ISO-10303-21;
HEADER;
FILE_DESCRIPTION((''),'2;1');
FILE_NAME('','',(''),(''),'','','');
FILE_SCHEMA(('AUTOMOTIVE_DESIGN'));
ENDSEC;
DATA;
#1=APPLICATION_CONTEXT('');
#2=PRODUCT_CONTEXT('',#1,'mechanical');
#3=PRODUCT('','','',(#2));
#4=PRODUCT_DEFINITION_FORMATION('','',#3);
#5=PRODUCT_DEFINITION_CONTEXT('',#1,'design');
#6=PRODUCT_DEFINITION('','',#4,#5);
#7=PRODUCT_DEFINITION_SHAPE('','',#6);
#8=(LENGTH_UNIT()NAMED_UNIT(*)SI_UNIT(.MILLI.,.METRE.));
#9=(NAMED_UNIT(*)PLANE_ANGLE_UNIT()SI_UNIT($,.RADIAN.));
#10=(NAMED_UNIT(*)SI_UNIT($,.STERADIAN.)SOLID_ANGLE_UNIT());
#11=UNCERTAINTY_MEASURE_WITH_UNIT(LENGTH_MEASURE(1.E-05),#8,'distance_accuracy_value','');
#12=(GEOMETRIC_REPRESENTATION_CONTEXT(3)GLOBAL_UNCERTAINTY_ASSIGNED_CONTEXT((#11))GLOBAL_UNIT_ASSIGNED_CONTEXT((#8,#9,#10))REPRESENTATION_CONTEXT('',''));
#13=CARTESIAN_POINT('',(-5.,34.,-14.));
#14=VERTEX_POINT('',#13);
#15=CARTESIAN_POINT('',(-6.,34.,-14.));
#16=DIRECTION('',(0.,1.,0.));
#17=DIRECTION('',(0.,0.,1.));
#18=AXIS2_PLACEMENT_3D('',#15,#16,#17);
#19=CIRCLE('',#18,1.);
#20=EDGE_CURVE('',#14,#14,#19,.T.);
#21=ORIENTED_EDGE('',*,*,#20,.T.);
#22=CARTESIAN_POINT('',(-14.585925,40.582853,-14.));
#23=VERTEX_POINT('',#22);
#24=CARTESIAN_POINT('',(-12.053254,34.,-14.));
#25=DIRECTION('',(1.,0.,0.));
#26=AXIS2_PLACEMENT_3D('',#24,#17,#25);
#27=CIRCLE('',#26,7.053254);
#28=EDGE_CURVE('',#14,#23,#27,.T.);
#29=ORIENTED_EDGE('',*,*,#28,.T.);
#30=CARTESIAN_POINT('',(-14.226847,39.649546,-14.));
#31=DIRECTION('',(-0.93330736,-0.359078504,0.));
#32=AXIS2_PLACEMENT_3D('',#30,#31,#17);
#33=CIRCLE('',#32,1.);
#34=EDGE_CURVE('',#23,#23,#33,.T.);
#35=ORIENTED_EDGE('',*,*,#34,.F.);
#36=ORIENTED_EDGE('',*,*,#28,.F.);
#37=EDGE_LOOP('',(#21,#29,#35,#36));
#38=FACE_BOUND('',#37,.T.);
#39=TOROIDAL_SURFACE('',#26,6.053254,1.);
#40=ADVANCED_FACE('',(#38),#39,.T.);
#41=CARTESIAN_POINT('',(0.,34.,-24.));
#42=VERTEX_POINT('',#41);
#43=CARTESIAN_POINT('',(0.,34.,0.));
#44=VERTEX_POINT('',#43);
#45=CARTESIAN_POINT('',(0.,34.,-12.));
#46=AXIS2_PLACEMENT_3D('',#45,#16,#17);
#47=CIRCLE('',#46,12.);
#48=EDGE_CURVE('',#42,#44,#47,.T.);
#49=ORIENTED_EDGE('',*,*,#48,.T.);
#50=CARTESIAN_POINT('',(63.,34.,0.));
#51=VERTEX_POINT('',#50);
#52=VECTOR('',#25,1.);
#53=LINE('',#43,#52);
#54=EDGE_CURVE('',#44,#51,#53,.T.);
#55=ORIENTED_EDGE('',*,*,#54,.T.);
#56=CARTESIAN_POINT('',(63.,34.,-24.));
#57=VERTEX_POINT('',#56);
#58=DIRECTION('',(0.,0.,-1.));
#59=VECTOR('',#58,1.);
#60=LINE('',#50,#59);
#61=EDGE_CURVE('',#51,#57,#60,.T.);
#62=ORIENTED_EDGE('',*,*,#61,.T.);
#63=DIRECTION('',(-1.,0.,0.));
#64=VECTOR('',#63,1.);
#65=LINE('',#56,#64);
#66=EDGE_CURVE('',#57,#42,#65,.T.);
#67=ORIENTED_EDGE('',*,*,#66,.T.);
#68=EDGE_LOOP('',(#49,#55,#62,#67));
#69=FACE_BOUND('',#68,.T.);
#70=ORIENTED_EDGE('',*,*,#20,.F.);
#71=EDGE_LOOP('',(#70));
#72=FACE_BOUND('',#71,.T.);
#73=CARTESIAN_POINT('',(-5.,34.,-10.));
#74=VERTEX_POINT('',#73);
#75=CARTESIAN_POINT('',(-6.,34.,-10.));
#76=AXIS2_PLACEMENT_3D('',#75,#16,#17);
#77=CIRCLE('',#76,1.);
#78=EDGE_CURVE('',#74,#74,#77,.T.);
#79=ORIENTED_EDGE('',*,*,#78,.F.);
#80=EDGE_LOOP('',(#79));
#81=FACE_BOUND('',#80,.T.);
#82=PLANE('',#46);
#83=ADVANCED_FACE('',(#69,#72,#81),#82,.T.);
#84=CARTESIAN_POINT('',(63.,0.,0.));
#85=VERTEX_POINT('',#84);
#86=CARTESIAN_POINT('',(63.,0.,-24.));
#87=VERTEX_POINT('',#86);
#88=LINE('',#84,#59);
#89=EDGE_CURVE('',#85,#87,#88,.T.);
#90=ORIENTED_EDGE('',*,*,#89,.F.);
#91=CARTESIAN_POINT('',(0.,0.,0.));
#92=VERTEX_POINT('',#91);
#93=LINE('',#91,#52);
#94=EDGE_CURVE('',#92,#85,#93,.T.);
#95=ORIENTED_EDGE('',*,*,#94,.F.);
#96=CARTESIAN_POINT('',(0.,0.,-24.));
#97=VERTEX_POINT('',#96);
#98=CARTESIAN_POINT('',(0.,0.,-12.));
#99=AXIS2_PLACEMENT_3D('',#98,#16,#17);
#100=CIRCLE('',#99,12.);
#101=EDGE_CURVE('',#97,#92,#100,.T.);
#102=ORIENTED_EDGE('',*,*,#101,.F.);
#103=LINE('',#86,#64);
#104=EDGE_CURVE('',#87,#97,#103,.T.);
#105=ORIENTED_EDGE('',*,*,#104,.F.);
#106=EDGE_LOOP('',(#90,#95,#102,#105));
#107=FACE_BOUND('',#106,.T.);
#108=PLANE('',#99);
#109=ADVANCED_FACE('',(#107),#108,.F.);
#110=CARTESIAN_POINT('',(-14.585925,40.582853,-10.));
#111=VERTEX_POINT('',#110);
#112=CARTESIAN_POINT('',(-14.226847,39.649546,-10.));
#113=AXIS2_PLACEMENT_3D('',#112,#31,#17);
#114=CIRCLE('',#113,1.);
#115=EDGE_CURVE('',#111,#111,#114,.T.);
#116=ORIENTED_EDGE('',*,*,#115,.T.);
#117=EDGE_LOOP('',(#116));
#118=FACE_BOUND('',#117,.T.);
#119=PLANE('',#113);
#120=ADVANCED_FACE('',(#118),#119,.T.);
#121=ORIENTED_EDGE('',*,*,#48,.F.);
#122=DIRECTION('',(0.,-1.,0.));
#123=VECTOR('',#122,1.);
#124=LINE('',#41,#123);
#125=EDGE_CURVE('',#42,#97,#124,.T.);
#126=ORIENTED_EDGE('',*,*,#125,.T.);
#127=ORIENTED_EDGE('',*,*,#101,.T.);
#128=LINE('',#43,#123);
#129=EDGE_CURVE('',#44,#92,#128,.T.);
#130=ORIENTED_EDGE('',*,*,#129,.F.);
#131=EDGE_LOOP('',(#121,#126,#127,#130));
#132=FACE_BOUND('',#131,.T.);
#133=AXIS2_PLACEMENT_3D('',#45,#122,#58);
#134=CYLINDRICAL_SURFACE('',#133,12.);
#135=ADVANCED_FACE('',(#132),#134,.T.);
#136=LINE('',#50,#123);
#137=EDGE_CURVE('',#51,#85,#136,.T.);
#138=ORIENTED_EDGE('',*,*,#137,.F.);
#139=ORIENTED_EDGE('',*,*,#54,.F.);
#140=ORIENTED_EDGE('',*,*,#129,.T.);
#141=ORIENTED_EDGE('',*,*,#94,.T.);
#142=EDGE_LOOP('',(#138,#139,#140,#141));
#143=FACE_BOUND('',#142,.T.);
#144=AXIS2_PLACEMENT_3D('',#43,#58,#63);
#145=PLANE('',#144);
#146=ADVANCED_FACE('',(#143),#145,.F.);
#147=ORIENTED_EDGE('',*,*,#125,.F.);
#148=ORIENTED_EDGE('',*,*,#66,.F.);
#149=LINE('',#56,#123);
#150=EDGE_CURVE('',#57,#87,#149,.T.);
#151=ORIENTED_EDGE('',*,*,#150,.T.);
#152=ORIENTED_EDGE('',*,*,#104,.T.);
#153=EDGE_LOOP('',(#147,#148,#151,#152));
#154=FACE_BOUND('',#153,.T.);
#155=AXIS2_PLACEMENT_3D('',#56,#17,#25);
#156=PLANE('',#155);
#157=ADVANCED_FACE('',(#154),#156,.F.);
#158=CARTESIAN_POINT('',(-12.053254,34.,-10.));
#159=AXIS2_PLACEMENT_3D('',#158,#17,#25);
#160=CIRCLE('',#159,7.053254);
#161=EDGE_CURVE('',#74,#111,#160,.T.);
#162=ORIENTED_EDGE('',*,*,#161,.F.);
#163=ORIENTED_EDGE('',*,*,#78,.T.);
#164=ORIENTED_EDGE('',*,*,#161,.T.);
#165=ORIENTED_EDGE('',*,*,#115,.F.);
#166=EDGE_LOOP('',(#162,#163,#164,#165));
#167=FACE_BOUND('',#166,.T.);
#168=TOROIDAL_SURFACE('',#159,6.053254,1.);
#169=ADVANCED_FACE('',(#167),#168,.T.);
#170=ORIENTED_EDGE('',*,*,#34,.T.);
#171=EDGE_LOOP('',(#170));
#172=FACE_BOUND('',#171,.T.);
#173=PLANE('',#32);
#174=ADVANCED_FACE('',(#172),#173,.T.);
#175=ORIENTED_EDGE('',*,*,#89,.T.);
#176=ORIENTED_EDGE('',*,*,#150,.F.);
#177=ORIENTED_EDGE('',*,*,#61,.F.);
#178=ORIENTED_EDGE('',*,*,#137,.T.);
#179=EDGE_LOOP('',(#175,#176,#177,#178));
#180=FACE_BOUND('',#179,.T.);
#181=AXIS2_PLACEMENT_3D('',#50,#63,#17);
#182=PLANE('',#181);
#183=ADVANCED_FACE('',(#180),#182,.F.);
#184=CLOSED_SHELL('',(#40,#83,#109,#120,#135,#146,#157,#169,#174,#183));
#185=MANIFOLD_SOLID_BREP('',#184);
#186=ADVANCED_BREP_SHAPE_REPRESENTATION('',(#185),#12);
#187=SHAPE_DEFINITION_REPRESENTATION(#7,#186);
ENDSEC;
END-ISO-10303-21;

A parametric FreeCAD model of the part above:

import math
import FreeCAD as App
import Part
import Sketcher

doc = App.newDocument("Part")
params = doc.addObject("Spreadsheet::Sheet", "Params")
for row, (alias, value) in enumerate([
    ("sketch1_radius", "12 mm"),
    ("sketch1_width", "63 mm"),
    ("pad1_length", "34 mm"),
    ("sketch2_diameter", "2 mm"),
    ("linearpattern_pitch", "4 mm"),
], start=1):
    params.set(f"A{row}", alias)
    params.set(f"B{row}", "=" + value)
    params.setAlias(f"B{row}", alias)

body = doc.addObject("PartDesign::Body", "Body")

sketch1 = body.newObject("Sketcher::SketchObject", "Sketch")
sketch1.AttachmentSupport = (doc.getObject("XZ_Plane"), [""])
sketch1.MapMode = "FlatFace"
sketch1.addGeometry(Part.LineSegment(App.Vector(0, 0, 0), App.Vector(63, 0, 0)), False)
sketch1.addGeometry(Part.LineSegment(App.Vector(63, 0, 0), App.Vector(63, -24, 0)), False)
sketch1.addGeometry(Part.LineSegment(App.Vector(63, -24, 0), App.Vector(0, -24, 0)), False)
sketch1.addGeometry(Part.ArcOfCircle(Part.Circle(App.Vector(0, -12, 0), App.Vector(0, 0, 1), 12), math.radians(90), math.radians(270)), False)
sketch1.addConstraint(Sketcher.Constraint("Coincident", 0, 2, 1, 1))
sketch1.addConstraint(Sketcher.Constraint("Coincident", 1, 2, 2, 1))
sketch1.addConstraint(Sketcher.Constraint("Tangent", 2, 2, 3, 2))
sketch1.addConstraint(Sketcher.Constraint("Tangent", 3, 1, 0, 1))
sketch1.addConstraint(Sketcher.Constraint("Horizontal", 0))
sketch1.addConstraint(Sketcher.Constraint("Vertical", 1))
sketch1.addConstraint(Sketcher.Constraint("Horizontal", 2))
sketch1.addConstraint(Sketcher.Constraint("Coincident", 3, 1, -1, 1))
sketch1.addConstraint(Sketcher.Constraint("Radius", 3, 12.0))
sketch1.addConstraint(Sketcher.Constraint("DistanceX", 0, 1, 0, 2, 63.0))
sketch1.setExpression("Constraints[8]", "Params.sketch1_radius")
sketch1.setExpression("Constraints[9]", "Params.sketch1_width")
pad1 = body.newObject("PartDesign::Pad", "Pad")
pad1.Profile = sketch1
pad1.setExpression("Length", "Params.pad1_length")
pad1.Reversed = True

sketch2 = body.newObject("Sketcher::SketchObject", "Sketch001")
sketch2.AttachmentSupport = (doc.getObject("XZ_Plane"), [""])
sketch2.MapMode = "FlatFace"
sketch2.AttachmentOffset = App.Placement(App.Vector(0, 0, -34), App.Rotation())
sketch2.addGeometry(Part.Circle(App.Vector(-6, -14, 0), App.Vector(0, 0, 1), 1), False)
sketch2.addConstraint(Sketcher.Constraint("Diameter", 0, 2.0))
sketch2.addConstraint(Sketcher.Constraint("DistanceX", 0, 3, -1, 1, 6.0))
sketch2.addConstraint(Sketcher.Constraint("DistanceY", 0, 3, -1, 1, 14.0))
sketch2.setExpression("Constraints[0]", "Params.sketch2_diameter")

sketch3 = body.newObject("Sketcher::SketchObject", "Sketch002")
sketch3.AttachmentSupport = (doc.getObject("XY_Plane"), [""])
sketch3.MapMode = "FlatFace"
sketch3.AttachmentOffset = App.Placement(App.Vector(0, 0, -14), App.Rotation())
sketch3.addGeometry(Part.ArcOfCircle(Part.Circle(App.Vector(-12, 34, 0), App.Vector(0, 0, 1), 6), math.radians(0), math.radians(111)), False)
sketch3.addConstraint(Sketcher.Constraint("DistanceY", -1, 1, 0, 3, 34.0))
sketch3.addConstraint(Sketcher.Constraint("DistanceX", 0, 1, -1, 1, 6.0))
sketch3.addConstraint(Sketcher.Constraint("DistanceY", -1, 1, 0, 1, 34.0))
sketch3.addConstraint(Sketcher.Constraint("Radius", 0, 6.053254))
sketch3.addConstraint(Sketcher.Constraint("DistanceX", 0, 2, -1, 1, 14.226847))
doc.recompute()

additivepipe = body.newObject("PartDesign::AdditivePipe", "AdditivePipe")
additivepipe.Profile = sketch2
additivepipe.Spine = (sketch3, ["Edge1"])
doc.recompute()

linearpattern = body.newObject("PartDesign::LinearPattern", "LinearPattern")
linearpattern.Originals = [additivepipe]
linearpattern.Direction = (doc.getObject("Z_Axis"), [""])
linearpattern.Mode = "offset"
linearpattern.setExpression("Offset", "Params.linearpattern_pitch")
linearpattern.Occurrences = 2
body.Tip = linearpattern

doc.recompute()
